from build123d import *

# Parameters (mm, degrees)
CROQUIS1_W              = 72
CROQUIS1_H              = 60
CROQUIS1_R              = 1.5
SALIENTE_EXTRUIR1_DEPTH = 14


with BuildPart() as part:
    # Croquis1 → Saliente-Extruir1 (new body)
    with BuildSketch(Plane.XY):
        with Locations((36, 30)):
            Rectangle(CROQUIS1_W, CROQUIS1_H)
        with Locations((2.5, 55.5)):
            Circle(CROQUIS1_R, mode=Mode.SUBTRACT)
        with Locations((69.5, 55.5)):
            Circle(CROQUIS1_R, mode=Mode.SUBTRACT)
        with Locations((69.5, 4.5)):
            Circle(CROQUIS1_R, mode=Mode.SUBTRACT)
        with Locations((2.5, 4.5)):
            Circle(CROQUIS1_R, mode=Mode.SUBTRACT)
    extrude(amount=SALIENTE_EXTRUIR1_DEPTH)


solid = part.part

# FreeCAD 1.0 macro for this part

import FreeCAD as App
import Part
import Sketcher
from FreeCAD import Vector

doc = App.newDocument("Part")
body = doc.addObject("PartDesign::Body", "Body")

# Sketch on XY plane
sketch1 = body.newObject("Sketcher::SketchObject", "Sketch")
sketch1.AttachmentSupport = (doc.getObject("XY_Plane"), [""])
sketch1.MapMode = "FlatFace"
sketch1.addGeometry(Part.LineSegment(Vector(0, 60, 0), Vector(0, 0, 0)), False)
sketch1.addGeometry(Part.LineSegment(Vector(0, 0, 0), Vector(72, 0, 0)), False)
sketch1.addGeometry(Part.LineSegment(Vector(72, 0, 0), Vector(72, 60, 0)), False)
sketch1.addGeometry(Part.LineSegment(Vector(72, 60, 0), Vector(0, 60, 0)), False)
sketch1.addGeometry(Part.Circle(Vector(2.5, 4.5, 0), Vector(0, 0, 1), 1.5), False)
sketch1.addGeometry(Part.Circle(Vector(69.5, 4.5, 0), Vector(0, 0, 1), 1.5), False)
sketch1.addGeometry(Part.Circle(Vector(2.5, 55.5, 0), Vector(0, 0, 1), 1.5), False)
sketch1.addGeometry(Part.Circle(Vector(69.5, 55.5, 0), Vector(0, 0, 1), 1.5), False)
sketch1.addConstraint(Sketcher.Constraint("Coincident", 0, 2, 1, 1))
sketch1.addConstraint(Sketcher.Constraint("Coincident", 1, 2, 2, 1))
sketch1.addConstraint(Sketcher.Constraint("Coincident", 2, 2, 3, 1))
sketch1.addConstraint(Sketcher.Constraint("Coincident", 3, 2, 0, 1))
sketch1.addConstraint(Sketcher.Constraint("Vertical", 0))
sketch1.addConstraint(Sketcher.Constraint("Horizontal", 1))
sketch1.addConstraint(Sketcher.Constraint("Vertical", 2))
sketch1.addConstraint(Sketcher.Constraint("Horizontal", 3))
sketch1.addConstraint(Sketcher.Constraint("Coincident", 0, 2, -1, 1))
sketch1.addConstraint(Sketcher.Constraint("Equal", 4, 5))
sketch1.addConstraint(Sketcher.Constraint("Equal", 5, 6))
sketch1.addConstraint(Sketcher.Constraint("Equal", 6, 7))
sketch1.addConstraint(Sketcher.Constraint("Horizontal", 4, 3, 5, 3))
sketch1.addConstraint(Sketcher.Constraint("Horizontal", 6, 3, 7, 3))
sketch1.addConstraint(Sketcher.Constraint("Vertical", 4, 3, 6, 3))
sketch1.addConstraint(Sketcher.Constraint("Vertical", 5, 3, 7, 3))
sketch1.addConstraint(Sketcher.Constraint("Diameter", 4, 3.0))
sketch1.addConstraint(Sketcher.Constraint("DistanceX", 1, 1, 1, 2, 72.0))
sketch1.addConstraint(Sketcher.Constraint("DistanceY", 0, 2, 0, 1, 60.0))
sketch1.addConstraint(Sketcher.Constraint("DistanceX", 4, 3, 5, 3, 67.0))
sketch1.addConstraint(Sketcher.Constraint("DistanceY", 4, 3, 6, 3, 51.0))
sketch1.addConstraint(Sketcher.Constraint("DistanceX", -1, 1, 4, 3, 2.5))
sketch1.addConstraint(Sketcher.Constraint("DistanceY", -1, 1, 4, 3, 4.5))
pad1 = body.newObject("PartDesign::Pad", "Pad")
pad1.Profile = sketch1
pad1.Length = 14

doc.recompute()
